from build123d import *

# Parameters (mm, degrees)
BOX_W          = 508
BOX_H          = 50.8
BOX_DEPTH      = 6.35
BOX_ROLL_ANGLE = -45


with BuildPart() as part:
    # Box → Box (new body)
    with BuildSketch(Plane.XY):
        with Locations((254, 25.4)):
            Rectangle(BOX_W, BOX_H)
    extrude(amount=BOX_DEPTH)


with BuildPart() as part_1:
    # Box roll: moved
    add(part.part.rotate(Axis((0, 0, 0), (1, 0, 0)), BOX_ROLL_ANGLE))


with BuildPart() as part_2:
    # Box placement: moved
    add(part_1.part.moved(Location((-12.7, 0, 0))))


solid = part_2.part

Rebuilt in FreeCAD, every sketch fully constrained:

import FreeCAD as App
import Part
import Sketcher
from FreeCAD import Vector
Q = App.Units.Quantity

doc = App.newDocument("Part")
params = doc.addObject("Spreadsheet::Sheet", "Params")
for row, (alias, value) in enumerate([
    ("sketch1_width", "20 in"),
    ("sketch1_height", "2 in"),
    ("pad1_length", "0.25 in"),
], start=1):
    params.set(f"A{row}", alias)
    params.set(f"B{row}", "=" + value)
    params.setAlias(f"B{row}", alias)

body = doc.addObject("PartDesign::Body", "Body")

# Sketch on XY plane
sketch1 = body.newObject("Sketcher::SketchObject", "Sketch")
sketch1.AttachmentSupport = (doc.getObject("XY_Plane"), [""])
sketch1.MapMode = "FlatFace"
sketch1.addGeometry(Part.LineSegment(Vector(0, 51, 0), Vector(0, 0, 0)), False)
sketch1.addGeometry(Part.LineSegment(Vector(0, 0, 0), Vector(508, 0, 0)), False)
sketch1.addGeometry(Part.LineSegment(Vector(508, 0, 0), Vector(508, 51, 0)), False)
sketch1.addGeometry(Part.LineSegment(Vector(508, 51, 0), Vector(0, 51, 0)), False)
sketch1.addConstraint(Sketcher.Constraint("Coincident", 0, 2, 1, 1))
sketch1.addConstraint(Sketcher.Constraint("Coincident", 1, 2, 2, 1))
sketch1.addConstraint(Sketcher.Constraint("Coincident", 2, 2, 3, 1))
sketch1.addConstraint(Sketcher.Constraint("Coincident", 3, 2, 0, 1))
sketch1.addConstraint(Sketcher.Constraint("Vertical", 0))
sketch1.addConstraint(Sketcher.Constraint("Horizontal", 1))
sketch1.addConstraint(Sketcher.Constraint("Vertical", 2))
sketch1.addConstraint(Sketcher.Constraint("Horizontal", 3))
sketch1.addConstraint(Sketcher.Constraint("Coincident", 0, 2, -1, 1))
sketch1.addConstraint(Sketcher.Constraint("DistanceX", 1, 1, 1, 2, Q("20 in")))
sketch1.addConstraint(Sketcher.Constraint("DistanceY", 0, 2, 0, 1, Q("2 in")))
sketch1.setExpression("Constraints[9]", "Params.sketch1_width")
sketch1.setExpression("Constraints[10]", "Params.sketch1_height")
pad1 = body.newObject("PartDesign::Pad", "Pad")
pad1.Profile = sketch1
pad1.setExpression("Length", "Params.pad1_length")
body2 = doc.addObject("PartDesign::Body", "Body001")
doc.recompute()

body.Placement = App.Placement(Vector(0, 0, 0), App.Rotation(Vector(1, 0, 0), 315))
boolean = body2.newObject("PartDesign::Boolean", "Boolean")
boolean.Type = "Fuse"
boolean.addObjects([body])
body3 = doc.addObject("PartDesign::Body", "Body002")
doc.recompute()

body2.Placement = App.Placement(Vector(-12.7, 0, 0), App.Rotation(Vector(0, 0, 1), 0))
boolean2 = body3.newObject("PartDesign::Boolean", "Boolean001")
boolean2.Type = "Fuse"
boolean2.addObjects([body2])

doc.recompute()
